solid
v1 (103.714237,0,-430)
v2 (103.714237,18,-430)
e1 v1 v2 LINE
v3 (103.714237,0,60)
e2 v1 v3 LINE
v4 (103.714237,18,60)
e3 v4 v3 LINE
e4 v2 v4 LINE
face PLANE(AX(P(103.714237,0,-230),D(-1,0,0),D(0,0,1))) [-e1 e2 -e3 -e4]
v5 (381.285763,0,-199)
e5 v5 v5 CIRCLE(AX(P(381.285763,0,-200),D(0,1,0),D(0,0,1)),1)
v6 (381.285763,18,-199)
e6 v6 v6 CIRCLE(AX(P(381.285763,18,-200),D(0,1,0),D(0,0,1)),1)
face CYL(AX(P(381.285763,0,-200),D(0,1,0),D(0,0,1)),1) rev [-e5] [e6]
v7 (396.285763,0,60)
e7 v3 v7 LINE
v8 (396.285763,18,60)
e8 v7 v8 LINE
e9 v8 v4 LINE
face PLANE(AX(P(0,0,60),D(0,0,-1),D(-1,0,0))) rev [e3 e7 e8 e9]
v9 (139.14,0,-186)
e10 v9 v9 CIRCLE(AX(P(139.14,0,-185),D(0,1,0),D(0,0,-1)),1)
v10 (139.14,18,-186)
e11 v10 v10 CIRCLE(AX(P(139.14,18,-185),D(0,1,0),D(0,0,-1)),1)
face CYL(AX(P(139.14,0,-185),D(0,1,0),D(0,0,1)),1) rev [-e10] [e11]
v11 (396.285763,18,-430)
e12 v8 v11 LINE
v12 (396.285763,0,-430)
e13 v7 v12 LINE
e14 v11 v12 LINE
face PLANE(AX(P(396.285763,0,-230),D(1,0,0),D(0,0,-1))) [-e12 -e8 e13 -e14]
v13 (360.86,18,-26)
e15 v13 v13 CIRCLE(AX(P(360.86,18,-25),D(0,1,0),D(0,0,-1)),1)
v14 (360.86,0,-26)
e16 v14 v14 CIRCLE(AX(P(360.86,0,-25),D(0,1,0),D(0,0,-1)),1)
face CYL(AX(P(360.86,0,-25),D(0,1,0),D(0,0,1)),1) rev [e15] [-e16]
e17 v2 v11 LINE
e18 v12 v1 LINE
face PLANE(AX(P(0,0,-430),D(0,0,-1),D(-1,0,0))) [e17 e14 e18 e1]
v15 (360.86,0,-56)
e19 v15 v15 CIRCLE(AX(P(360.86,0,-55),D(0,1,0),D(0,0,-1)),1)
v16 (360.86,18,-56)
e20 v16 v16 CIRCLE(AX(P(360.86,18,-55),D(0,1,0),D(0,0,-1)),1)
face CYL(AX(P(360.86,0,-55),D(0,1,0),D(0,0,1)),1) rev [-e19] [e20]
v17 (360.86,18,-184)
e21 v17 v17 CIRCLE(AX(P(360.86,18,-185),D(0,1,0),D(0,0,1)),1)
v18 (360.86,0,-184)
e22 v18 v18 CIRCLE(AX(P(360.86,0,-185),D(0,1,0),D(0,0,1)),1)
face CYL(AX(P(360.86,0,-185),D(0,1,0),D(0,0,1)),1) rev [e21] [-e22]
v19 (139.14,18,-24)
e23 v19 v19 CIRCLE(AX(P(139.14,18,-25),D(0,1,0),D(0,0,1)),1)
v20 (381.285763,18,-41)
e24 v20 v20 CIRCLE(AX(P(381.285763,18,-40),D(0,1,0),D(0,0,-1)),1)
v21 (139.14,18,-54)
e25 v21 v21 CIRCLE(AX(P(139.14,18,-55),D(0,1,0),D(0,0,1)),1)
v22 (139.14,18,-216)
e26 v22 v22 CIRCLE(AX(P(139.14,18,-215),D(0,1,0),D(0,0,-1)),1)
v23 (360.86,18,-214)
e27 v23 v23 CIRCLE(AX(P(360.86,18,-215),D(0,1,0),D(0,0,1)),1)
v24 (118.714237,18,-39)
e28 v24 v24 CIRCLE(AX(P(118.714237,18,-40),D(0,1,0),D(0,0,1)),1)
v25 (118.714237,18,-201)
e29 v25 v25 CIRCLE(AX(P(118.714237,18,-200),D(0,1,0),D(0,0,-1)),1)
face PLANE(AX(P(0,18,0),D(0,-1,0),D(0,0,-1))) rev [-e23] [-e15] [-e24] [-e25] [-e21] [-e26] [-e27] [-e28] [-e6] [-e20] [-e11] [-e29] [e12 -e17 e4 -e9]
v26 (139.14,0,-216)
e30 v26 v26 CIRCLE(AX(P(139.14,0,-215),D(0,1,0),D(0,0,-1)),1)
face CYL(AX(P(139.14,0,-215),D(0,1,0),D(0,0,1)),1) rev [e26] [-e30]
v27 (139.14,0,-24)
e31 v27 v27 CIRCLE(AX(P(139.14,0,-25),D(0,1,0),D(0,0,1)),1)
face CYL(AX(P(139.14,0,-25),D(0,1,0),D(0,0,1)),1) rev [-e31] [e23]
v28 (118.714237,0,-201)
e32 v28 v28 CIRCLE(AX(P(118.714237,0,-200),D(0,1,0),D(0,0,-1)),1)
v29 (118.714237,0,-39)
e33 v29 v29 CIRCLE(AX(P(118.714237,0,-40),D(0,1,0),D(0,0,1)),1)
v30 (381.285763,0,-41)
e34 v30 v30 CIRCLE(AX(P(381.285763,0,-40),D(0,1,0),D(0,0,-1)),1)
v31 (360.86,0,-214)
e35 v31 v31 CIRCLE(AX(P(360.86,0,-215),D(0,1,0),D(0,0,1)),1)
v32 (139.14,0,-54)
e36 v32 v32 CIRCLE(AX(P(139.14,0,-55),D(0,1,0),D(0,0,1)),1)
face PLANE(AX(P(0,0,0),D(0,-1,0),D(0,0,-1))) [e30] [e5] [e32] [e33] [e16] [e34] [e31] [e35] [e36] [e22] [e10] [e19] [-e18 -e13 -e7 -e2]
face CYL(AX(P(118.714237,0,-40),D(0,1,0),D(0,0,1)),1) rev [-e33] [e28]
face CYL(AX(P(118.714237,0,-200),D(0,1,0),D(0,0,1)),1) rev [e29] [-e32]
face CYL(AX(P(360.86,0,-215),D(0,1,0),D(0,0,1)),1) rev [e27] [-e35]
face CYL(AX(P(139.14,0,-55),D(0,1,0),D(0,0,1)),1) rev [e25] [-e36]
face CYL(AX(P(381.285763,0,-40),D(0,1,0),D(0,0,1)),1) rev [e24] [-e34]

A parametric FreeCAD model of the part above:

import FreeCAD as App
import Part
import Sketcher
Q = App.Units.Quantity

doc = App.newDocument("Part")
body = doc.addObject("PartDesign::Body", "Body")

# Sketch on XZ plane
sketch1 = body.newObject("Sketcher::SketchObject", "Sketch")
sketch1.AttachmentSupport = (doc.getObject("XZ_Plane"), [""])
sketch1.MapMode = "FlatFace"
sketch1.addGeometry(Part.LineSegment(App.Vector(0, -240, 0), App.Vector(0, 0, 0)), False)
sketch1.addGeometry(Part.LineSegment(App.Vector(0, 0, 0), App.Vector(400, 0, 0)), False)
sketch1.addGeometry(Part.LineSegment(App.Vector(400, 0, 0), App.Vector(400, -240, 0)), False)
sketch1.addGeometry(Part.LineSegment(App.Vector(400, -240, 0), App.Vector(0, -240, 0)), False)
sketch1.addConstraint(Sketcher.Constraint("Coincident", 0, 2, 1, 1))
sketch1.addConstraint(Sketcher.Constraint("Coincident", 1, 2, 2, 1))
sketch1.addConstraint(Sketcher.Constraint("Coincident", 2, 2, 3, 1))
sketch1.addConstraint(Sketcher.Constraint("Coincident", 3, 2, 0, 1))
sketch1.addConstraint(Sketcher.Constraint("Vertical", 0))
sketch1.addConstraint(Sketcher.Constraint("Horizontal", 1))
sketch1.addConstraint(Sketcher.Constraint("Vertical", 2))
sketch1.addConstraint(Sketcher.Constraint("Horizontal", 3))
sketch1.addConstraint(Sketcher.Constraint("Coincident", 0, 2, -1, 1))
sketch1.addConstraint(Sketcher.Constraint("DistanceX", 1, 1, 1, 2, Q("400 mm")))
sketch1.addConstraint(Sketcher.Constraint("DistanceY", 0, 1, 0, 2, Q("240 mm")))
pad1 = body.newObject("PartDesign::Pad", "Pad")
pad1.Profile = sketch1
pad1.Length = 18
pad1.Reversed = True

# Sketch on XZ plane
sketch2 = body.newObject("Sketcher::SketchObject", "Sketch001")
sketch2.AttachmentSupport = (doc.getObject("XZ_Plane"), [""])
sketch2.MapMode = "FlatFace"
sketch2.AttachmentOffset = App.Placement(App.Vector(0, 0, -18), App.Rotation())
sketch2.addGeometry(Part.Circle(App.Vector(360.86, -55, 0), App.Vector(0, 0, 1), 1), False)
sketch2.addGeometry(Part.Circle(App.Vector(360.86, -25, 0), App.Vector(0, 0, 1), 1), False)
sketch2.addGeometry(Part.Circle(App.Vector(381.285763, -40, 0), App.Vector(0, 0, 1), 1), False)
sketch2.addGeometry(Part.Circle(App.Vector(118.714237, -40, 0), App.Vector(0, 0, 1), 1), False)
sketch2.addGeometry(Part.Circle(App.Vector(139.14, -25, 0), App.Vector(0, 0, 1), 1), False)
sketch2.addGeometry(Part.Circle(App.Vector(139.14, -55, 0), App.Vector(0, 0, 1), 1), False)
sketch2.addGeometry(Part.Circle(App.Vector(381.285763, -200, 0), App.Vector(0, 0, 1), 1), False)
sketch2.addGeometry(Part.Circle(App.Vector(360.86, -215, 0), App.Vector(0, 0, 1), 1), False)
sketch2.addGeometry(Part.Circle(App.Vector(360.86, -185, 0), App.Vector(0, 0, 1), 1), False)
sketch2.addGeometry(Part.Circle(App.Vector(139.14, -185, 0), App.Vector(0, 0, 1), 1), False)
sketch2.addGeometry(Part.Circle(App.Vector(139.14, -215, 0), App.Vector(0, 0, 1), 1), False)
sketch2.addGeometry(Part.Circle(App.Vector(118.714237, -200, 0), App.Vector(0, 0, 1), 1), False)
sketch2.addConstraint(Sketcher.Constraint("Equal", 0, 1))
sketch2.addConstraint(Sketcher.Constraint("Equal", 1, 2))
sketch2.addConstraint(Sketcher.Constraint("Equal", 2, 3))
sketch2.addConstraint(Sketcher.Constraint("Equal", 3, 4))
sketch2.addConstraint(Sketcher.Constraint("Equal", 4, 5))
sketch2.addConstraint(Sketcher.Constraint("Equal", 5, 6))
sketch2.addConstraint(Sketcher.Constraint("Equal", 6, 7))
sketch2.addConstraint(Sketcher.Constraint("Equal", 7, 8))
sketch2.addConstraint(Sketcher.Constraint("Equal", 8, 9))
sketch2.addConstraint(Sketcher.Constraint("Equal", 9, 10))
sketch2.addConstraint(Sketcher.Constraint("Equal", 10, 11))
sketch2.addConstraint(Sketcher.Constraint("Horizontal", 2, 3, 3, 3))
sketch2.addConstraint(Sketcher.Constraint("Horizontal", 1, 3, 4, 3))
sketch2.addConstraint(Sketcher.Constraint("Horizontal", 0, 3, 5, 3))
sketch2.addConstraint(Sketcher.Constraint("Horizontal", 8, 3, 9, 3))
sketch2.addConstraint(Sketcher.Constraint("Horizontal", 7, 3, 10, 3))
sketch2.addConstraint(Sketcher.Constraint("Horizontal", 6, 3, 11, 3))
sketch2.addConstraint(Sketcher.Constraint("Vertical", 0, 3, 1, 3))
sketch2.addConstraint(Sketcher.Constraint("Vertical", 4, 3, 5, 3))
sketch2.addConstraint(Sketcher.Constraint("Vertical", 2, 3, 6, 3))
sketch2.addConstraint(Sketcher.Constraint("Vertical", 1, 3, 7, 3))
sketch2.addConstraint(Sketcher.Constraint("Vertical", 7, 3, 8, 3))
sketch2.addConstraint(Sketcher.Constraint("Vertical", 5, 3, 9, 3))
sketch2.addConstraint(Sketcher.Constraint("Vertical", 9, 3, 10, 3))
sketch2.addConstraint(Sketcher.Constraint("Vertical", 3, 3, 11, 3))
sketch2.addConstraint(Sketcher.Constraint("Diameter", 0, Q("2 mm")))
sketch2.addConstraint(Sketcher.Constraint("DistanceY", 0, 3, -1, 1, Q("55 mm")))
sketch2.addConstraint(Sketcher.Constraint("DistanceY", 1, 3, -1, 1, Q("25 mm")))
sketch2.addConstraint(Sketcher.Constraint("DistanceY", 2, 3, -1, 1, Q("40 mm")))
sketch2.addConstraint(Sketcher.Constraint("DistanceY", 6, 3, -1, 1, Q("200 mm")))
sketch2.addConstraint(Sketcher.Constraint("DistanceY", 7, 3, -1, 1, Q("215 mm")))
sketch2.addConstraint(Sketcher.Constraint("DistanceY", 8, 3, -1, 1, Q("185 mm")))
sketch2.addConstraint(Sketcher.Constraint("DistanceX", -1, 1, 0, 3, Q("360.86 mm")))
sketch2.addConstraint(Sketcher.Constraint("DistanceX", -1, 1, 4, 3, Q("139.14 mm")))
sketch2.addConstraint(Sketcher.Constraint("DistanceX", -1, 1, 2, 3, Q("381.285763 mm")))
sketch2.addConstraint(Sketcher.Constraint("DistanceX", -1, 1, 3, 3, Q("118.714237 mm")))
pocket1 = body.newObject("PartDesign::Pocket", "Pocket")
pocket1.Profile = sketch2
pocket1.Type = "ThroughAll"
pocket1.Reversed = True

# Sketch on XZ plane
sketch3 = body.newObject("Sketcher::SketchObject", "Sketch002")
sketch3.AttachmentSupport = (doc.getObject("XZ_Plane"), [""])
sketch3.MapMode = "FlatFace"
sketch3.AttachmentOffset = App.Placement(App.Vector(0, 0, -18), App.Rotation())
sketch3.addGeometry(Part.LineSegment(App.Vector(-111.372817, -284.719521, 0), App.Vector(-111.372817, 42.83903, 0)), False)
sketch3.addGeometry(Part.LineSegment(App.Vector(-111.372817, 42.83903, 0), App.Vector(504.605856, 42.83903, 0)), False)
sketch3.addGeometry(Part.LineSegment(App.Vector(504.605856, 42.83903, 0), App.Vector(504.605856, -284.719521, 0)), False)
sketch3.addGeometry(Part.LineSegment(App.Vector(504.605856, -284.719521, 0), App.Vector(-111.372817, -284.719521, 0)), False)
sketch3.addGeometry(Part.LineSegment(App.Vector(396.285763, -10, 0), App.Vector(103.714237, -10, 0)), False)
sketch3.addGeometry(Part.LineSegment(App.Vector(103.714237, -10, 0), App.Vector(103.714237, -230, 0)), False)
sketch3.addGeometry(Part.LineSegment(App.Vector(103.714237, -230, 0), App.Vector(396.285763, -230, 0)), False)
sketch3.addGeometry(Part.LineSegment(App.Vector(396.285763, -230, 0), App.Vector(396.285763, -10, 0)), False)
sketch3.addConstraint(Sketcher.Constraint("Coincident", 0, 2, 1, 1))
sketch3.addConstraint(Sketcher.Constraint("Coincident", 1, 2, 2, 1))
sketch3.addConstraint(Sketcher.Constraint("Coincident", 2, 2, 3, 1))
sketch3.addConstraint(Sketcher.Constraint("Coincident", 3, 2, 0, 1))
sketch3.addConstraint(Sketcher.Constraint("Coincident", 4, 2, 5, 1))
sketch3.addConstraint(Sketcher.Constraint("Coincident", 5, 2, 6, 1))
sketch3.addConstraint(Sketcher.Constraint("Coincident", 6, 2, 7, 1))
sketch3.addConstraint(Sketcher.Constraint("Coincident", 7, 2, 4, 1))
sketch3.addConstraint(Sketcher.Constraint("Vertical", 0))
sketch3.addConstraint(Sketcher.Constraint("Horizontal", 1))
sketch3.addConstraint(Sketcher.Constraint("Vertical", 2))
sketch3.addConstraint(Sketcher.Constraint("Horizontal", 3))
sketch3.addConstraint(Sketcher.Constraint("Horizontal", 4))
sketch3.addConstraint(Sketcher.Constraint("Vertical", 5))
sketch3.addConstraint(Sketcher.Constraint("Horizontal", 6))
sketch3.addConstraint(Sketcher.Constraint("Vertical", 7))
sketch3.addConstraint(Sketcher.Constraint("DistanceY", 5, 2, 5, 1, Q("220 mm")))
sketch3.addConstraint(Sketcher.Constraint("DistanceY", 4, 2, -1, 1, Q("10 mm")))
sketch3.addConstraint(Sketcher.Constraint("DistanceY", 0, 1, 0, 2, Q("327.558551 mm")))
sketch3.addConstraint(Sketcher.Constraint("DistanceX", 1, 1, 1, 2, Q("615.978673 mm")))
sketch3.addConstraint(Sketcher.Constraint("DistanceX", 4, 2, 4, 1, Q("292.571527 mm")))
sketch3.addConstraint(Sketcher.Constraint("DistanceY", -1, 1, 0, 2, Q("42.83903 mm")))
sketch3.addConstraint(Sketcher.Constraint("DistanceX", 4, 2, 1, 2, Q("400.891619 mm")))
sketch3.addConstraint(Sketcher.Constraint("DistanceX", 0, 2, -1, 1, Q("111.372817 mm")))
pocket2 = body.newObject("PartDesign::Pocket", "Pocket001")
pocket2.Profile = sketch3
pocket2.Type = "ThroughAll"
pocket2.Reversed = True

# Sketch on XY plane
sketch4 = body.newObject("Sketcher::SketchObject", "Sketch003")
sketch4.AttachmentSupport = (doc.getObject("XY_Plane"), [""])
sketch4.MapMode = "FlatFace"
sketch4.AttachmentOffset = App.Placement(App.Vector(0, 0, -230), App.Rotation())
sketch4.addGeometry(Part.LineSegment(App.Vector(396.285763, 18, 0), App.Vector(396.285763, 0, 0)), False)
sketch4.addGeometry(Part.LineSegment(App.Vector(396.285763, 0, 0), App.Vector(103.714237, 0, 0)), False)
sketch4.addGeometry(Part.LineSegment(App.Vector(103.714237, 0, 0), App.Vector(103.714237, 18, 0)), False)
sketch4.addGeometry(Part.LineSegment(App.Vector(103.714237, 18, 0), App.Vector(396.285763, 18, 0)), False)
sketch4.addConstraint(Sketcher.Constraint("Coincident", 0, 2, 1, 1))
sketch4.addConstraint(Sketcher.Constraint("Coincident", 1, 2, 2, 1))
sketch4.addConstraint(Sketcher.Constraint("Coincident", 2, 2, 3, 1))
sketch4.addConstraint(Sketcher.Constraint("Coincident", 3, 2, 0, 1))
sketch4.addConstraint(Sketcher.Constraint("Vertical", 0))
sketch4.addConstraint(Sketcher.Constraint("Horizontal", 1))
sketch4.addConstraint(Sketcher.Constraint("Vertical", 2))
sketch4.addConstraint(Sketcher.Constraint("Horizontal", 3))
sketch4.addConstraint(Sketcher.Constraint("PointOnObject", 0, 2, -1))
sketch4.addConstraint(Sketcher.Constraint("DistanceY", 0, 2, 0, 1, Q("18 mm")))
sketch4.addConstraint(Sketcher.Constraint("DistanceX", 1, 2, 1, 1, Q("292.571527 mm")))
sketch4.addConstraint(Sketcher.Constraint("DistanceX", -1, 1, 0, 2, Q("396.285763 mm")))
pad2 = body.newObject("PartDesign::Pad", "Pad001")
pad2.Profile = sketch4
pad2.Length = 200
pad2.Reversed = True

# Sketch on XY plane
sketch5 = body.newObject("Sketcher::SketchObject", "Sketch004")
sketch5.AttachmentSupport = (doc.getObject("XY_Plane"), [""])
sketch5.MapMode = "FlatFace"
sketch5.AttachmentOffset = App.Placement(App.Vector(0, 0, -10), App.Rotation())
sketch5.addGeometry(Part.LineSegment(App.Vector(103.714237, 18, 0), App.Vector(103.714237, 0, 0)), False)
sketch5.addGeometry(Part.LineSegment(App.Vector(103.714237, 0, 0), App.Vector(396.285763, 0, 0)), False)
sketch5.addGeometry(Part.LineSegment(App.Vector(396.285763, 0, 0), App.Vector(396.285763, 18, 0)), False)
sketch5.addGeometry(Part.LineSegment(App.Vector(396.285763, 18, 0), App.Vector(103.714237, 18, 0)), False)
sketch5.addConstraint(Sketcher.Constraint("Coincident", 0, 2, 1, 1))
sketch5.addConstraint(Sketcher.Constraint("Coincident", 1, 2, 2, 1))
sketch5.addConstraint(Sketcher.Constraint("Coincident", 2, 2, 3, 1))
sketch5.addConstraint(Sketcher.Constraint("Coincident", 3, 2, 0, 1))
sketch5.addConstraint(Sketcher.Constraint("Vertical", 0))
sketch5.addConstraint(Sketcher.Constraint("Horizontal", 1))
sketch5.addConstraint(Sketcher.Constraint("Vertical", 2))
sketch5.addConstraint(Sketcher.Constraint("Horizontal", 3))
sketch5.addConstraint(Sketcher.Constraint("PointOnObject", 0, 2, -1))
sketch5.addConstraint(Sketcher.Constraint("DistanceY", 0, 2, 0, 1, Q("18 mm")))
sketch5.addConstraint(Sketcher.Constraint("DistanceX", 1, 1, 1, 2, Q("292.571527 mm")))
sketch5.addConstraint(Sketcher.Constraint("DistanceX", -1, 1, 0, 2, Q("103.714237 mm")))
pad3 = body.newObject("PartDesign::Pad", "Pad002")
pad3.Profile = sketch5
pad3.Length = 70

doc.recompute()
